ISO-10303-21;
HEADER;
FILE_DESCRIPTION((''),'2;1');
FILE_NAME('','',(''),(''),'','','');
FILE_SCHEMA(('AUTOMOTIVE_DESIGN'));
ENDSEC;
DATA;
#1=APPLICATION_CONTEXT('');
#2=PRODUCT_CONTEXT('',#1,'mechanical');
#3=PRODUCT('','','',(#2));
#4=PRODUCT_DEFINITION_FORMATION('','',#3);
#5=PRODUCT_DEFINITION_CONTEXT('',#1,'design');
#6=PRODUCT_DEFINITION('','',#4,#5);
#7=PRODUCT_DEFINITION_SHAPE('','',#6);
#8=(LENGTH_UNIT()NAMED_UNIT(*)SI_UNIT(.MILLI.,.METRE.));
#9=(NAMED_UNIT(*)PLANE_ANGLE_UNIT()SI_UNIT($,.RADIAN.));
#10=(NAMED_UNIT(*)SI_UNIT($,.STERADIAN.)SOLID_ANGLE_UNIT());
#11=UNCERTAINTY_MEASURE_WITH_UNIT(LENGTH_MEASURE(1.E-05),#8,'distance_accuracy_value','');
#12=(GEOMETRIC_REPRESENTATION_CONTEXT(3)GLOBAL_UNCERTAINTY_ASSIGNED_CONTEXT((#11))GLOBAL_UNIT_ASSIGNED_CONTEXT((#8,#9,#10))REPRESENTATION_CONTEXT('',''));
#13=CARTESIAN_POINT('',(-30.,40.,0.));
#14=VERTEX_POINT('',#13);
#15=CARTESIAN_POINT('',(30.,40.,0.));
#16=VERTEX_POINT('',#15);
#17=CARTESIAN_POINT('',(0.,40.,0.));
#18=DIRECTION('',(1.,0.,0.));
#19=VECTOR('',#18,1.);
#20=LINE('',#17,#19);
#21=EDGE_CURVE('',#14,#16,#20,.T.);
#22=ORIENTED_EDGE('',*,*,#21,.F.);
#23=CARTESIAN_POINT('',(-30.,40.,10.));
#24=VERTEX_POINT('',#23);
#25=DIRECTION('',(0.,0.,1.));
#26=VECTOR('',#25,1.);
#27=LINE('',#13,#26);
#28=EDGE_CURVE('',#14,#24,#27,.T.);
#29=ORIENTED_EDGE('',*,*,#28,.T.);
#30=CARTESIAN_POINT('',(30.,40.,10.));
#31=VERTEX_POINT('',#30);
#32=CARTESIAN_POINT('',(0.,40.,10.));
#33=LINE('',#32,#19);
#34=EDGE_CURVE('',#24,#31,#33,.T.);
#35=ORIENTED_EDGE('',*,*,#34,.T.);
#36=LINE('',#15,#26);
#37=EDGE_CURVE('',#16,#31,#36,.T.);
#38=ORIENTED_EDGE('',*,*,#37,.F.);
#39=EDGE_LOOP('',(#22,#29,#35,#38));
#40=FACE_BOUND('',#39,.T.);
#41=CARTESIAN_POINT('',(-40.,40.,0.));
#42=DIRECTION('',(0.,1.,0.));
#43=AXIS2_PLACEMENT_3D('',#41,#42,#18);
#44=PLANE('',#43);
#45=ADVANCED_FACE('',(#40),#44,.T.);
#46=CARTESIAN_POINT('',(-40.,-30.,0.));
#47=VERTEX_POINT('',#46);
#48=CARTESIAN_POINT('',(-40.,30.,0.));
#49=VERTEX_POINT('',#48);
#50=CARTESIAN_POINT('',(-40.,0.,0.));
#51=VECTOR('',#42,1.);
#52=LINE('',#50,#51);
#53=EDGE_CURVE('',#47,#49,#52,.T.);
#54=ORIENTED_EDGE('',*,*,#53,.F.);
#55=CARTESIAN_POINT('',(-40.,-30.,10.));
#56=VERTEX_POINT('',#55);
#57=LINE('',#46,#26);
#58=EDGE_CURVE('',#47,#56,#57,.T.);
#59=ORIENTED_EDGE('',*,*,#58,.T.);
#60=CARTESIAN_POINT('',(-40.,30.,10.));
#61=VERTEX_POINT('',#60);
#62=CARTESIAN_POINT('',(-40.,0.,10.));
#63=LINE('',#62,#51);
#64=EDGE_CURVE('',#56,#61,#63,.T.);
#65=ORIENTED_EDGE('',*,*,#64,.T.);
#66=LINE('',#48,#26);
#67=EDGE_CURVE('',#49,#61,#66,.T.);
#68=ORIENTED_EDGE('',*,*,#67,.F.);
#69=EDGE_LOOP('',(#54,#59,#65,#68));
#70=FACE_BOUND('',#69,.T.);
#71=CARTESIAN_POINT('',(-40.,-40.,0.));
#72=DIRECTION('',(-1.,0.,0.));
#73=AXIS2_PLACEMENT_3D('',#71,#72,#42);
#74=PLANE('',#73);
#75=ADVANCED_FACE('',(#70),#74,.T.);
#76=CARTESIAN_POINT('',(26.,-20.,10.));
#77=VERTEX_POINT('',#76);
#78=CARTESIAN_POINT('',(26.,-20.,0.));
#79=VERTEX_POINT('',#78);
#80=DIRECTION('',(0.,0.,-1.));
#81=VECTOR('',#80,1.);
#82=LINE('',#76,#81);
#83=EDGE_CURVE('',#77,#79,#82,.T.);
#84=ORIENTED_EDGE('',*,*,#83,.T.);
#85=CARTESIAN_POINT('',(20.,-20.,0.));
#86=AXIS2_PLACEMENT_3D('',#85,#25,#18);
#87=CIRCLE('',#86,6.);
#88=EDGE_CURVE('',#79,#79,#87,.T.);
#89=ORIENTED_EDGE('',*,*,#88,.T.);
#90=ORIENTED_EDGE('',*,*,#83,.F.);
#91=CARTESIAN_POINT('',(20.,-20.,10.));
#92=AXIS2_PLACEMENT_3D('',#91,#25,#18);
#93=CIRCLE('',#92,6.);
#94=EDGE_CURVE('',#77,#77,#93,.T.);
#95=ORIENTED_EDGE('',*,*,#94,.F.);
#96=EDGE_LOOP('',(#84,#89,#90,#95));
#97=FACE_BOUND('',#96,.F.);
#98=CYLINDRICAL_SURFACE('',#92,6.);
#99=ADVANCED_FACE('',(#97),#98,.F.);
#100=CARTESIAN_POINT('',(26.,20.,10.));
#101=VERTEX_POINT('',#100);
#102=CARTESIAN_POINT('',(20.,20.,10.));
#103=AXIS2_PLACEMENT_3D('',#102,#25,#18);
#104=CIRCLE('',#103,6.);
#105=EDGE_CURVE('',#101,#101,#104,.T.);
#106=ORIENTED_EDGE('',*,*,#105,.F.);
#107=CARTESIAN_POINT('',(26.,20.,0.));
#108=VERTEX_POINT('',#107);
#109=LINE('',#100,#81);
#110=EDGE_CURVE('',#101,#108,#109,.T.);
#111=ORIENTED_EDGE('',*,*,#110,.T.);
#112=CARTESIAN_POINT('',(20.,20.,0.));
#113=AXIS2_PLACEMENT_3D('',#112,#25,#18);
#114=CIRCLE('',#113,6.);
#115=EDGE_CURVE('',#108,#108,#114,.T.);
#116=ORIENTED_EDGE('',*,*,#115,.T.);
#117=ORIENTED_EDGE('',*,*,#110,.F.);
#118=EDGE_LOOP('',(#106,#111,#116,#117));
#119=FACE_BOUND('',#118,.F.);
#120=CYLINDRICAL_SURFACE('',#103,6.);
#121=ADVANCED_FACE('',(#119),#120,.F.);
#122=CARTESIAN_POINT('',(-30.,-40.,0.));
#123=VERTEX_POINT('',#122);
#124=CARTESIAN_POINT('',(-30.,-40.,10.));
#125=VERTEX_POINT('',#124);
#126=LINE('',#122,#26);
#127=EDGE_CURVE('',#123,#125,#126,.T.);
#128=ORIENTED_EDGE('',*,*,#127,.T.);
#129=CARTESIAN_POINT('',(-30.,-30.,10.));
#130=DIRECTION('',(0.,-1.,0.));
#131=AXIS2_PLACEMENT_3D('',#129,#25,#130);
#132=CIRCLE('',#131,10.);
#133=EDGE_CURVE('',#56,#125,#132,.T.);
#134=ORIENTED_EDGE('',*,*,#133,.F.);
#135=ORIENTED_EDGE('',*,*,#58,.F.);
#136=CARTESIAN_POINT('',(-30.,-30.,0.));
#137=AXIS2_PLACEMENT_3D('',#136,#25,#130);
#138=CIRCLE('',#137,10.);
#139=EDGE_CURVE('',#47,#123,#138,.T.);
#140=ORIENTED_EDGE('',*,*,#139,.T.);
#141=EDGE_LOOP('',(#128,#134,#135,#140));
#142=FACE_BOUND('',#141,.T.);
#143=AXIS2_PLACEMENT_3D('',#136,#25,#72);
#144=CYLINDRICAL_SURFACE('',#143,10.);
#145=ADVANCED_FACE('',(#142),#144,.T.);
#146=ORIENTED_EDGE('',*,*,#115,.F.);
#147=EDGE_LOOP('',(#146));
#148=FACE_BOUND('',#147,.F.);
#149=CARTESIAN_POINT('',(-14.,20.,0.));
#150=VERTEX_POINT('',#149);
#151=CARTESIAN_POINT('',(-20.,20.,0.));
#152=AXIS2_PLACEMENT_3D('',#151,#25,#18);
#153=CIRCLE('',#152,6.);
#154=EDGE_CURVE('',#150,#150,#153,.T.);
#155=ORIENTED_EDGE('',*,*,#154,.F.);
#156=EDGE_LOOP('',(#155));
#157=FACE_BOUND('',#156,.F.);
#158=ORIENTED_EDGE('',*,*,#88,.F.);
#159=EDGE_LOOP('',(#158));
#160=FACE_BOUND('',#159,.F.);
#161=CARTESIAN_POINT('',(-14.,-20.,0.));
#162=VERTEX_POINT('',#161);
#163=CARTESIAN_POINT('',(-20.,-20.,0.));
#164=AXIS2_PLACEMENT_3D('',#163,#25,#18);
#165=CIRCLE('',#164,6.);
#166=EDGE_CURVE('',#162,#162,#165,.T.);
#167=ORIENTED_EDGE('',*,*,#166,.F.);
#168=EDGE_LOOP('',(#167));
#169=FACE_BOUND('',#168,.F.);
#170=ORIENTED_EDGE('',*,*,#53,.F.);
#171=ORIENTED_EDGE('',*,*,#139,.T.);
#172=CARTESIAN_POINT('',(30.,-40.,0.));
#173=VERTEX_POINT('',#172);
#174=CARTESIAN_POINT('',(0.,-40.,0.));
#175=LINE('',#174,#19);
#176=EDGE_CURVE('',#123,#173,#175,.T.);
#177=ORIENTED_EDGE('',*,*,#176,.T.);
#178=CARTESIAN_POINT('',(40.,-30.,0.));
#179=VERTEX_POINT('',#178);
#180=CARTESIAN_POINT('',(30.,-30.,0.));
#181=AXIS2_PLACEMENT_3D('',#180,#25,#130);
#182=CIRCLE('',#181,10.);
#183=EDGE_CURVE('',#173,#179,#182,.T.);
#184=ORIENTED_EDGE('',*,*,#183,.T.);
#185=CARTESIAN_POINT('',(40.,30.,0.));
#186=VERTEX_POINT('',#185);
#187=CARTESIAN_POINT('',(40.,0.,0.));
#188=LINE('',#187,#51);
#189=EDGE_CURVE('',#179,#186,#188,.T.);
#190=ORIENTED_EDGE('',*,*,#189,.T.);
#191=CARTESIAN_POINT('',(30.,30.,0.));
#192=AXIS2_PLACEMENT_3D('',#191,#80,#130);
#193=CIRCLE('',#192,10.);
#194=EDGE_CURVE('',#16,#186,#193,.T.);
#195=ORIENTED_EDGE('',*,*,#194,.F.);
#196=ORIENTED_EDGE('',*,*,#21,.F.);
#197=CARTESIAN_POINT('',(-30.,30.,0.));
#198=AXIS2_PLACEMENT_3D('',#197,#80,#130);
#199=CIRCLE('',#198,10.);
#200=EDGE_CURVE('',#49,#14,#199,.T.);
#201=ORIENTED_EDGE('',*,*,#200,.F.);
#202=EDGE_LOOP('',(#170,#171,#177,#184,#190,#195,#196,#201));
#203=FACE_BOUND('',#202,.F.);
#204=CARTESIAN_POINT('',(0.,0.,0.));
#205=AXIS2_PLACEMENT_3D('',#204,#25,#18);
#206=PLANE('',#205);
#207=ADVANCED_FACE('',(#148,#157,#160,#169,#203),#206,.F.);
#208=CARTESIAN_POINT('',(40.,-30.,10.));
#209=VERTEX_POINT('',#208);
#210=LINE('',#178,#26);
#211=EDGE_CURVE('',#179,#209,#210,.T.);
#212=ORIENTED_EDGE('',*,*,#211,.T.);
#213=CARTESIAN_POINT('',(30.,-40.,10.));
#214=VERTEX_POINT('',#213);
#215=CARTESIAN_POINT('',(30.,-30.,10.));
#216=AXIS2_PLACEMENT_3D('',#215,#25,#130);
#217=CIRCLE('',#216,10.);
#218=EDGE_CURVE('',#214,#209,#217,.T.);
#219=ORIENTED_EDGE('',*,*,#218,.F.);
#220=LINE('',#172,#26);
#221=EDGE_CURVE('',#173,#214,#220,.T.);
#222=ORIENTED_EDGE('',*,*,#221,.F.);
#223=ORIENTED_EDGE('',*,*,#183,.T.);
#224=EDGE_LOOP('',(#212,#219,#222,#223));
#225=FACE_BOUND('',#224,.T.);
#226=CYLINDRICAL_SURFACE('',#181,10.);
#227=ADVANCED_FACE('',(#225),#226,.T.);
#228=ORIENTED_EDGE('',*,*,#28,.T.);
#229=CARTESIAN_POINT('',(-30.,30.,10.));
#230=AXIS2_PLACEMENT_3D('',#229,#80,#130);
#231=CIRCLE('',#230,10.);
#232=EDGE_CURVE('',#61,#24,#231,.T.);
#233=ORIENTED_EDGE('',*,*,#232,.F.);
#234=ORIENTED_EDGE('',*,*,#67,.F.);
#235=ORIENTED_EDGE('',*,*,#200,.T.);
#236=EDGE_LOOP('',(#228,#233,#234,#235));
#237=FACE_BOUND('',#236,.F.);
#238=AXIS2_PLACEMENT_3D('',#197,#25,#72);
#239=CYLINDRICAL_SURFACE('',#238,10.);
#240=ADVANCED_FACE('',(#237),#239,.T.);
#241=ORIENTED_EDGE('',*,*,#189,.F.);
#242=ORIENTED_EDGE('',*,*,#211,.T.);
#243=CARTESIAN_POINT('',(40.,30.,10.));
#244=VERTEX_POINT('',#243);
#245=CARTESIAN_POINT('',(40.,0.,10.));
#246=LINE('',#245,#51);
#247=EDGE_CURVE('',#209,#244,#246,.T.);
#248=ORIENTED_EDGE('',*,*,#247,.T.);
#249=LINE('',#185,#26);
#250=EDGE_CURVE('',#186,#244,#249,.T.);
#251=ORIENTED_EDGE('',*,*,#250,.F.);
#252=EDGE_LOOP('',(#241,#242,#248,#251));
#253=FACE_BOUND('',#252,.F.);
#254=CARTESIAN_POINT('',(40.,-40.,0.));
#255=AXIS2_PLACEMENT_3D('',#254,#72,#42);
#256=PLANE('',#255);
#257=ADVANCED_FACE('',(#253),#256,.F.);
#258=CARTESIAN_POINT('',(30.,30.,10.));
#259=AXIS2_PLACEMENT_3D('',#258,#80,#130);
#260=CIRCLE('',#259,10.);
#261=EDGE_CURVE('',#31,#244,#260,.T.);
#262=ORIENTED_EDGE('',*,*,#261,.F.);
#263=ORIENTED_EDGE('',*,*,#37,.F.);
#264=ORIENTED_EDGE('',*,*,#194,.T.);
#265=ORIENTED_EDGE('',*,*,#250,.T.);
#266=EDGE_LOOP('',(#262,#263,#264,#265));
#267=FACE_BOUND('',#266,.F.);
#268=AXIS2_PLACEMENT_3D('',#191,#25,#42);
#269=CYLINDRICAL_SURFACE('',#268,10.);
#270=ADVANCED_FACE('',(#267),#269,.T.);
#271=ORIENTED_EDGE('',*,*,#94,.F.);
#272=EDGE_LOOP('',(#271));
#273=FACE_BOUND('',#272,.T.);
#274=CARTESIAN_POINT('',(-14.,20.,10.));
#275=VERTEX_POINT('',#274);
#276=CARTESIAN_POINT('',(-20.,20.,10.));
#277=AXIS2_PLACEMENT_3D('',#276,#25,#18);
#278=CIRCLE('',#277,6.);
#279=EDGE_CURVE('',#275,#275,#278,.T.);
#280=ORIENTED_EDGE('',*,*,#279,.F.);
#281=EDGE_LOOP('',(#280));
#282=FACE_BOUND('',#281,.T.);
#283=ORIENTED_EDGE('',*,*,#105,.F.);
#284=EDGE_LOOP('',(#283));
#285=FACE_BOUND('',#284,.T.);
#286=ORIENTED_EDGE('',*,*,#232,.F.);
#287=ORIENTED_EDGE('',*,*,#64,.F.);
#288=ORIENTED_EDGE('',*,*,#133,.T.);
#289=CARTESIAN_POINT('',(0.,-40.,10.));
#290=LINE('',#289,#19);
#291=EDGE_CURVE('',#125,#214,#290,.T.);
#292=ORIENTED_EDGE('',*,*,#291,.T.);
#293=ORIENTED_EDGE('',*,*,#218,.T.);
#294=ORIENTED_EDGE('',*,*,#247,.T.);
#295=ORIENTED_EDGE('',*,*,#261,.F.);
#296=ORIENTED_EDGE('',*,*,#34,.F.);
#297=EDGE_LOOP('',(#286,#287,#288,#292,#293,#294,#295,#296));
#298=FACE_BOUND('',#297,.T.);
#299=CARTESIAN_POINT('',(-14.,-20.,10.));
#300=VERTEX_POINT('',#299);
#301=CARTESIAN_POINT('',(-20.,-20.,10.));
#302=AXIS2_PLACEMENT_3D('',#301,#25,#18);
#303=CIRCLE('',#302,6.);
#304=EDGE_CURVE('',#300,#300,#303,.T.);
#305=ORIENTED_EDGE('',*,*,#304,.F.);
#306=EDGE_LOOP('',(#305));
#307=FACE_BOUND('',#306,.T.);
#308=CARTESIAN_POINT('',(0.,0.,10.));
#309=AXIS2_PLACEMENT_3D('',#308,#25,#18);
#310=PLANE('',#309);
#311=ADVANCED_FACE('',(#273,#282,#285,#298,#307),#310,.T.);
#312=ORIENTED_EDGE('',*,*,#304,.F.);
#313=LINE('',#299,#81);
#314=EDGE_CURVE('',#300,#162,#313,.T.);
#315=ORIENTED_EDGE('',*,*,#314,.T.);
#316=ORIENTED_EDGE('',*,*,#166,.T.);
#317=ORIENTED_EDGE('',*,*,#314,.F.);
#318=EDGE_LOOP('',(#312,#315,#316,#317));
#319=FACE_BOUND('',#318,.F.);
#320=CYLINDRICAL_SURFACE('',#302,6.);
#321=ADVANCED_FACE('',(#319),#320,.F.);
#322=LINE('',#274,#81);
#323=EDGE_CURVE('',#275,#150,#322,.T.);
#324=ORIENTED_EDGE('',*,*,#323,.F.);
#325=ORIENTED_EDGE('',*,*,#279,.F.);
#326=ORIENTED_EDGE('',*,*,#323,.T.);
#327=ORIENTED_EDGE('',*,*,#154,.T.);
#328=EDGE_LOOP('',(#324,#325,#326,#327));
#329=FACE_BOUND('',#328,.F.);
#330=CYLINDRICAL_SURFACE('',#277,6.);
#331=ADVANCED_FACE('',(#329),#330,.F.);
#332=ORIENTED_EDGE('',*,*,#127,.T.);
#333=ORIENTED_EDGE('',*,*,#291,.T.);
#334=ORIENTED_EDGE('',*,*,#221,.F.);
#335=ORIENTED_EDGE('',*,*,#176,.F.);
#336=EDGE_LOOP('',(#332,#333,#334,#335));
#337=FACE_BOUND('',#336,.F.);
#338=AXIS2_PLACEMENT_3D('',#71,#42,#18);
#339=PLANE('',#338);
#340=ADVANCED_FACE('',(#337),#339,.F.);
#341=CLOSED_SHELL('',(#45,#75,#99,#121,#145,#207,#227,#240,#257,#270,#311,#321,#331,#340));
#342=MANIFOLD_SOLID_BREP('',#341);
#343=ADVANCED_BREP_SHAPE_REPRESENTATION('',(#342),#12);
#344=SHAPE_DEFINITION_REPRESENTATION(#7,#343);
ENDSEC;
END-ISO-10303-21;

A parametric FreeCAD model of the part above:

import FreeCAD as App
import Part
import Sketcher
from FreeCAD import Vector


def edges_at(feature, points):
    """Names of the edges that pass closest to the given points."""
    edges = feature.Shape.Edges
    near = lambda p: min(range(len(edges)), key=lambda i: edges[i].distToShape(Part.Vertex(*p))[0])
    return sorted({f"Edge{near(p) + 1}" for p in points})

doc = App.newDocument("Part")
body = doc.addObject("PartDesign::Body", "Body")

sketch1 = body.newObject("Sketcher::SketchObject", "Sketch")
sketch1.AttachmentSupport = (doc.getObject("XY_Plane"), [""])
sketch1.MapMode = "FlatFace"
sketch1.addGeometry(Part.LineSegment(Vector(-40, 40, 0), Vector(-40, -40, 0)), False)
sketch1.addGeometry(Part.LineSegment(Vector(-40, -40, 0), Vector(40, -40, 0)), False)
sketch1.addGeometry(Part.LineSegment(Vector(40, -40, 0), Vector(40, 40, 0)), False)
sketch1.addGeometry(Part.LineSegment(Vector(40, 40, 0), Vector(-40, 40, 0)), False)
sketch1.addConstraint(Sketcher.Constraint("Coincident", 0, 2, 1, 1))
sketch1.addConstraint(Sketcher.Constraint("Coincident", 1, 2, 2, 1))
sketch1.addConstraint(Sketcher.Constraint("Coincident", 2, 2, 3, 1))
sketch1.addConstraint(Sketcher.Constraint("Coincident", 3, 2, 0, 1))
sketch1.addConstraint(Sketcher.Constraint("Vertical", 0))
sketch1.addConstraint(Sketcher.Constraint("Horizontal", 1))
sketch1.addConstraint(Sketcher.Constraint("Vertical", 2))
sketch1.addConstraint(Sketcher.Constraint("Horizontal", 3))
sketch1.addConstraint(Sketcher.Constraint("Symmetric", 0, 2, 2, 2, -1, 1))
sketch1.addConstraint(Sketcher.Constraint("Equal", 3, 0))
sketch1.addConstraint(Sketcher.Constraint("DistanceX", 1, 1, 1, 2, 80.0))
pad1 = body.newObject("PartDesign::Pad", "Pad")
pad1.Profile = sketch1
pad1.Length = 10

sketch2 = body.newObject("Sketcher::SketchObject", "Sketch001")
sketch2.AttachmentSupport = (doc.getObject("XY_Plane"), [""])
sketch2.MapMode = "FlatFace"
sketch2.AttachmentOffset = App.Placement(Vector(0, 0, 10), App.Rotation())
sketch2.addGeometry(Part.Circle(Vector(-20, 20, 0), Vector(0, 0, 1), 6), False)
sketch2.addGeometry(Part.Circle(Vector(20, 20, 0), Vector(0, 0, 1), 6), False)
sketch2.addGeometry(Part.Circle(Vector(20, -20, 0), Vector(0, 0, 1), 6), False)
sketch2.addGeometry(Part.Circle(Vector(-20, -20, 0), Vector(0, 0, 1), 6), False)
sketch2.addConstraint(Sketcher.Constraint("Equal", 0, 1))
sketch2.addConstraint(Sketcher.Constraint("Equal", 1, 2))
sketch2.addConstraint(Sketcher.Constraint("Equal", 2, 3))
sketch2.addConstraint(Sketcher.Constraint("Symmetric", 0, 3, 2, 3, -1, 1))
sketch2.addConstraint(Sketcher.Constraint("Symmetric", 1, 3, 3, 3, -1, 1))
sketch2.addConstraint(Sketcher.Constraint("Symmetric", 0, 3, 1, 3, -2))
sketch2.addConstraint(Sketcher.Constraint("Diameter", 0, 12.0))
sketch2.addConstraint(Sketcher.Constraint("DistanceX", 0, 3, -1, 1, 20.0))
sketch2.addConstraint(Sketcher.Constraint("DistanceY", -1, 1, 0, 3, 20.0))
pocket1 = body.newObject("PartDesign::Pocket", "Pocket")
pocket1.Profile = sketch2
pocket1.Type = "ThroughAll"
doc.recompute()

fillet = body.newObject("PartDesign::Fillet", "Fillet")
fillet.Base = (pocket1, edges_at(pocket1, [
    (-40, -40, 5),
    (40, -40, 5),
    (40, 40, 5),
    (-40, 40, 5),
]))
fillet.Radius = 10

doc.recompute()
